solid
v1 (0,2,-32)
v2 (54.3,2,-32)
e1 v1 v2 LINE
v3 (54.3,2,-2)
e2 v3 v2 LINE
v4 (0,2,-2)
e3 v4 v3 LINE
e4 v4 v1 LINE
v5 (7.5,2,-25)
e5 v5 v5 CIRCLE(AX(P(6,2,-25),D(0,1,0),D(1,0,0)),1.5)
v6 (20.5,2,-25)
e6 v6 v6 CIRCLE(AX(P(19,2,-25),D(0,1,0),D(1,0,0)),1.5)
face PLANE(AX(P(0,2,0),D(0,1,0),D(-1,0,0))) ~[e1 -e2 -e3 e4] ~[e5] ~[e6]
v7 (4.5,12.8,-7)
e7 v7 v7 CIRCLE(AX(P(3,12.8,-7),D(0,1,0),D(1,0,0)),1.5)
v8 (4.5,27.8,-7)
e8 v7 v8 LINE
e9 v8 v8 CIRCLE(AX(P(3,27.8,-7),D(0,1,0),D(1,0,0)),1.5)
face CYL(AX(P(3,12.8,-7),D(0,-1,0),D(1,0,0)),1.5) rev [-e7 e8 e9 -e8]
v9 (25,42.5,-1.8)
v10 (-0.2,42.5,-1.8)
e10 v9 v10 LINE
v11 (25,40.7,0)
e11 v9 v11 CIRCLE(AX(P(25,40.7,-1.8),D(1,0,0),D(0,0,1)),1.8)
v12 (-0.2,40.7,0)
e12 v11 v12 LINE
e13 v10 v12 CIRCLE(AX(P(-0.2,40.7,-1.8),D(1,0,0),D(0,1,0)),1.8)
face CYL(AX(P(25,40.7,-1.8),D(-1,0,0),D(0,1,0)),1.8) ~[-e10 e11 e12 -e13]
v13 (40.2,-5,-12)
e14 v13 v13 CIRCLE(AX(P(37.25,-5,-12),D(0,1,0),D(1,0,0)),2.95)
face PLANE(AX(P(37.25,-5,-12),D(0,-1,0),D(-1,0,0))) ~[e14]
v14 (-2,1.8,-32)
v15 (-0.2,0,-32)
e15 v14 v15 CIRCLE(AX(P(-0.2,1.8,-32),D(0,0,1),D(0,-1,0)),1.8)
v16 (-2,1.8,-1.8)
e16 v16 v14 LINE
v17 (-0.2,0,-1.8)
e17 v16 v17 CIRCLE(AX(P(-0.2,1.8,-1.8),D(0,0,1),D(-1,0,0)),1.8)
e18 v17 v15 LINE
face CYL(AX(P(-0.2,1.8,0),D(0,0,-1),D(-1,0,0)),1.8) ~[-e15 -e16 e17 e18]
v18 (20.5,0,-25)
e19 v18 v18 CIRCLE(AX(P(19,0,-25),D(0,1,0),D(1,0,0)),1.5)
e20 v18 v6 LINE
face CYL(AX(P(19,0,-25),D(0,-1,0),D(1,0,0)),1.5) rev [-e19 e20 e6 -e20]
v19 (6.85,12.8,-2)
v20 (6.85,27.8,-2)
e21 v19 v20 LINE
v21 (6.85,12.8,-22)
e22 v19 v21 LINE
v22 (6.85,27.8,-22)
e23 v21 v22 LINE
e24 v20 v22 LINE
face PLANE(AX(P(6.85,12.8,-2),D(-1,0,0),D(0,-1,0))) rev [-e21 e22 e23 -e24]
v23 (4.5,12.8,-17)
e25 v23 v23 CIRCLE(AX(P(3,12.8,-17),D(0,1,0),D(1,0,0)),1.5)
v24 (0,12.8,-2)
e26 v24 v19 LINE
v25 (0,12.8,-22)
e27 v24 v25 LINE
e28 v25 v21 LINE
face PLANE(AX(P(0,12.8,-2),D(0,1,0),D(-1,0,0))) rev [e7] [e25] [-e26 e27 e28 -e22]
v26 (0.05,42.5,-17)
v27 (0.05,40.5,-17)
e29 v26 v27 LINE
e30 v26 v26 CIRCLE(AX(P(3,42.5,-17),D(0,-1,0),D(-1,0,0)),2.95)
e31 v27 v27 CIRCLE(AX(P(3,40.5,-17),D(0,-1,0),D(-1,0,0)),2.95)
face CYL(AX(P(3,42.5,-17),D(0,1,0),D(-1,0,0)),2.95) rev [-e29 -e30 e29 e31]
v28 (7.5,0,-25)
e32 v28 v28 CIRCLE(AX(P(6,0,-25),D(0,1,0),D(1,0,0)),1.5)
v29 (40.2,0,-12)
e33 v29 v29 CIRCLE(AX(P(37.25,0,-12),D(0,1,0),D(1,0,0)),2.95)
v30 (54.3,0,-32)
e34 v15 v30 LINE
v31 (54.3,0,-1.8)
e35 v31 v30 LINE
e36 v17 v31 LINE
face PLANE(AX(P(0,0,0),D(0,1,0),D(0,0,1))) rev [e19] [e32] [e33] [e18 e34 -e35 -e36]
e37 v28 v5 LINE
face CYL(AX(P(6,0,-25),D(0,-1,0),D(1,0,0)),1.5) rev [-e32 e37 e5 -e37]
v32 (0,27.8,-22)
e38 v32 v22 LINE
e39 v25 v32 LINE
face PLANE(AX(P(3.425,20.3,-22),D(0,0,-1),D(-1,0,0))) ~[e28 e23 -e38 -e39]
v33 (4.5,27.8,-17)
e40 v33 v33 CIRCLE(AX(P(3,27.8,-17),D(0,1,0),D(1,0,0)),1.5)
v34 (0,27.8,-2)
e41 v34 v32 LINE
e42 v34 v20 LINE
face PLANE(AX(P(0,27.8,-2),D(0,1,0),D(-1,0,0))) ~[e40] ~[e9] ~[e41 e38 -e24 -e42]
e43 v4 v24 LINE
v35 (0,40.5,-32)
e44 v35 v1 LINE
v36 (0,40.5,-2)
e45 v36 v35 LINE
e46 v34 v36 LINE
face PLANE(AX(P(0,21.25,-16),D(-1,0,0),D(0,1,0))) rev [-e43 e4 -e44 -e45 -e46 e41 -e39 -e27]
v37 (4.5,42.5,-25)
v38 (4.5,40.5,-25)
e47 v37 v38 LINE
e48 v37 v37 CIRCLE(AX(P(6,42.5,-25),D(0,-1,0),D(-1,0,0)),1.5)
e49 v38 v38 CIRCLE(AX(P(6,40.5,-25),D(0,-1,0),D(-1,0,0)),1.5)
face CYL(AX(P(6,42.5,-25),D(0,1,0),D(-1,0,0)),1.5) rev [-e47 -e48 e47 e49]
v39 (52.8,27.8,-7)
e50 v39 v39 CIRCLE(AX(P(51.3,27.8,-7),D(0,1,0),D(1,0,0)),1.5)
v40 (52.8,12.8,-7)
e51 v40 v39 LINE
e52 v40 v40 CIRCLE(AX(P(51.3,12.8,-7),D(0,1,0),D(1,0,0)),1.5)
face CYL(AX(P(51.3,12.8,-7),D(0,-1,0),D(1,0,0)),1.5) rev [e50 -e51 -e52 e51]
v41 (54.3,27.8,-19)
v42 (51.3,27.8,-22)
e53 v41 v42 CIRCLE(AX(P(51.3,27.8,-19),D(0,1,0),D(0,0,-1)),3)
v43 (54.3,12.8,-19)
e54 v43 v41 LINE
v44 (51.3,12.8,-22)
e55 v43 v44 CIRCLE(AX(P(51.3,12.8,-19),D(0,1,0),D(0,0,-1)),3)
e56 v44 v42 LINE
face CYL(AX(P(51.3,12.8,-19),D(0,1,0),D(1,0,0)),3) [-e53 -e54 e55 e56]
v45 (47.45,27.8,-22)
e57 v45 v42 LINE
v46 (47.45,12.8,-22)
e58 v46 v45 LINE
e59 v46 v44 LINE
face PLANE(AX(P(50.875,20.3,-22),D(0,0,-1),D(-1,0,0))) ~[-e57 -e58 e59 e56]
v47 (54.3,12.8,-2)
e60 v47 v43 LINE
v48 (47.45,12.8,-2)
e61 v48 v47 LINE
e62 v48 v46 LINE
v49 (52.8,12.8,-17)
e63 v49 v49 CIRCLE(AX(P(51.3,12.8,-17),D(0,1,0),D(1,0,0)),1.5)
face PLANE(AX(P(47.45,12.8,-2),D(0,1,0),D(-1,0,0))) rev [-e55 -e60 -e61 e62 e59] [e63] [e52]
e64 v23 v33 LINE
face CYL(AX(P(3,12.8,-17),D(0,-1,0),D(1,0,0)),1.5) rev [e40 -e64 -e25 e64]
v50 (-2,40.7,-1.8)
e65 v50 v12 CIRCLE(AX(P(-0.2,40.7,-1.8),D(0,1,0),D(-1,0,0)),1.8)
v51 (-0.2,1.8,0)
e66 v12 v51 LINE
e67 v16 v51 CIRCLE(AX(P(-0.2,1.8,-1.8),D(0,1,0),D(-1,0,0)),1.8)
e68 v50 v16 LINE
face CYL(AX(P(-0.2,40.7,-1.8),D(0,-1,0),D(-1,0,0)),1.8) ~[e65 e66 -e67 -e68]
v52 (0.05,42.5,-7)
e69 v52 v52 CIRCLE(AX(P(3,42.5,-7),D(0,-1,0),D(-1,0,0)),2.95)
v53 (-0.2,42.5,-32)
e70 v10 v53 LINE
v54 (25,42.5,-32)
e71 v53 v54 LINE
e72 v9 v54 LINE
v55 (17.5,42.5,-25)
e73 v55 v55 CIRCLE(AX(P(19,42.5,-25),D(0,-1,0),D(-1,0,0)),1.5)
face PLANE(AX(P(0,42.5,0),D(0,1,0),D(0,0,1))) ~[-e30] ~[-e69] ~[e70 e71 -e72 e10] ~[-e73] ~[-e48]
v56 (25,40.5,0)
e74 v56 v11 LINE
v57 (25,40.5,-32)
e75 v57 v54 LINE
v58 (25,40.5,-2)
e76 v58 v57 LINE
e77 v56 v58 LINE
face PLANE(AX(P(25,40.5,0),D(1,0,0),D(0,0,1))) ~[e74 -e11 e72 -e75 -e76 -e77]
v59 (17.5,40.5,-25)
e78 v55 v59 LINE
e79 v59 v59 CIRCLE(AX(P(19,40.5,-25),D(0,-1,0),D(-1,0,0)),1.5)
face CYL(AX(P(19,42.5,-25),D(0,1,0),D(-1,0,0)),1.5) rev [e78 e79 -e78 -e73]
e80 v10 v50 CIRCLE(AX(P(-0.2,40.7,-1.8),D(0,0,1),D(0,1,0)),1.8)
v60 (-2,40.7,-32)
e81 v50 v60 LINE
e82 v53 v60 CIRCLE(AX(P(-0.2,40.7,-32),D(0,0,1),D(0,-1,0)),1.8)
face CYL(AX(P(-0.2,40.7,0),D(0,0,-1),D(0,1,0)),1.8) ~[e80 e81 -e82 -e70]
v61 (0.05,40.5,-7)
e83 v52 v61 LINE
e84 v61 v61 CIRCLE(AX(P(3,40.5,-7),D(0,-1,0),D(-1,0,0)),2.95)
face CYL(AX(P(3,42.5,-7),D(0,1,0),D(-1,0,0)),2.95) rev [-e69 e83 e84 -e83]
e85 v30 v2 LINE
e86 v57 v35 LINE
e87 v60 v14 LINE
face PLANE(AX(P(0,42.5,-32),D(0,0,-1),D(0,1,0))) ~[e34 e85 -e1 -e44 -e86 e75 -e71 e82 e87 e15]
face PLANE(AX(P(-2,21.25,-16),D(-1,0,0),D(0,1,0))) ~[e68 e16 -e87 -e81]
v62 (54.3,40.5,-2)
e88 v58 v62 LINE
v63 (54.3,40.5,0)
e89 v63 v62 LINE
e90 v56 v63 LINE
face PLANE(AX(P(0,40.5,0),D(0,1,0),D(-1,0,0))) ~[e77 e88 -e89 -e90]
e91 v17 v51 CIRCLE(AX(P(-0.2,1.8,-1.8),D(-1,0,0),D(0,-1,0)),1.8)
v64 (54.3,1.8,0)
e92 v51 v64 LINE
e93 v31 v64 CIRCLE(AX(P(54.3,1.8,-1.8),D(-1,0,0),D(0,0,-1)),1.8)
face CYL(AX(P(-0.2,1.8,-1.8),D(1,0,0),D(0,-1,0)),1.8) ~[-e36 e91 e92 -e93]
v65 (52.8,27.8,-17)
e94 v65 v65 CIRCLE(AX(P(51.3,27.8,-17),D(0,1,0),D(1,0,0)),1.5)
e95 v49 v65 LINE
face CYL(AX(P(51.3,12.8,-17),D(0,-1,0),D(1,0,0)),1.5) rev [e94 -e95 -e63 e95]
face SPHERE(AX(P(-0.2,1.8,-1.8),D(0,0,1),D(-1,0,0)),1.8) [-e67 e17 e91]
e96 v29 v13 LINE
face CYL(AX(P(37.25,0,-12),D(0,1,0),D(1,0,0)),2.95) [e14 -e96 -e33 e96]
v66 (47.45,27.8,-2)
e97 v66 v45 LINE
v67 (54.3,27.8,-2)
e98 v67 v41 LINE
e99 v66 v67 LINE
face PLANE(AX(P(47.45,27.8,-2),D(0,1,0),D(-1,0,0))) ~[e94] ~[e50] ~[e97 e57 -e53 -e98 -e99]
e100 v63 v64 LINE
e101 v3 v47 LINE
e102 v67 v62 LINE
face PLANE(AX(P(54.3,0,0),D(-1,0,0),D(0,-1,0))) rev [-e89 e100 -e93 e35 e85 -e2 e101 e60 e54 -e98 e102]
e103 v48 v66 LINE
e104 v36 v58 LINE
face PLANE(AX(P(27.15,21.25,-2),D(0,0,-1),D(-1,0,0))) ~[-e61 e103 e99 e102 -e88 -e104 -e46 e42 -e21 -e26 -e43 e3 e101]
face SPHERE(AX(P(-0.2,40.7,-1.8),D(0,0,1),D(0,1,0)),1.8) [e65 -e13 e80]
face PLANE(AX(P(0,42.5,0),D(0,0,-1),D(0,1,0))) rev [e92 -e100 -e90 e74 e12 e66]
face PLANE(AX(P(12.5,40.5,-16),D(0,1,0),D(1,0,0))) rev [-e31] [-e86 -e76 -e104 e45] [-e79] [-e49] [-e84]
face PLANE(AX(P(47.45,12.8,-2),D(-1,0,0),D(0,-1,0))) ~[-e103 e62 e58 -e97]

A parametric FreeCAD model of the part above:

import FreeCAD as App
import Part
import Sketcher


def edges_at(feature, points):
    """Names of the edges that pass closest to the given points."""
    edges = feature.Shape.Edges
    near = lambda p: min(range(len(edges)), key=lambda i: edges[i].distToShape(Part.Vertex(*p))[0])
    return sorted({f"Edge{near(p) + 1}" for p in points})


def add_polygon(sketch, points):
    """Adds a closed chain of lines whose ends are joined by coincident constraints."""
    first, n = sketch.GeometryCount, len(points)
    for a, b in zip(points, points[1:] + points[:1]):
        sketch.addGeometry(Part.LineSegment(App.Vector(*a, 0), App.Vector(*b, 0)), False)
    for i in range(n):
        sketch.addConstraint(Sketcher.Constraint("Coincident", first + i, 2, first + (i + 1) % n, 1))

doc = App.newDocument("Part")
body = doc.addObject("PartDesign::Body", "Body")

# Sketch on XY plane
sketch1 = body.newObject("Sketcher::SketchObject", "Sketch")
sketch1.AttachmentSupport = (doc.getObject("XY_Plane"), [""])
sketch1.MapMode = "FlatFace"
add_polygon(sketch1, [(0, 40), (0, 2), (54, 2), (54, 40)])  # lines 0-3
sketch1.addConstraint(Sketcher.Constraint("Vertical", 0))
sketch1.addConstraint(Sketcher.Constraint("Horizontal", 1))
sketch1.addConstraint(Sketcher.Constraint("Vertical", 2))
sketch1.addConstraint(Sketcher.Constraint("Horizontal", 3))
sketch1.addConstraint(Sketcher.Constraint("PointOnObject", 0, 2, -2))
sketch1.addConstraint(Sketcher.Constraint("DistanceX", 1, 1, 1, 2, 54.3))
sketch1.addConstraint(Sketcher.Constraint("DistanceY", 0, 2, 0, 1, 38.5))
sketch1.addConstraint(Sketcher.Constraint("DistanceY", -1, 1, 0, 2, 2.0))
pad1 = body.newObject("PartDesign::Pad", "Pad")
pad1.Profile = sketch1
pad1.Length = 2

# Sketch on XY plane
sketch2 = body.newObject("Sketcher::SketchObject", "Sketch001")
sketch2.AttachmentSupport = (doc.getObject("XY_Plane"), [""])
sketch2.MapMode = "FlatFace"
sketch2.AttachmentOffset = App.Placement(App.Vector(0, 0, 2), App.Rotation())
add_polygon(sketch2, [(0, 28), (0, 13), (7, 13), (7, 28)])  # lines 0-3
sketch2.addConstraint(Sketcher.Constraint("Vertical", 0))
sketch2.addConstraint(Sketcher.Constraint("Horizontal", 1))
sketch2.addConstraint(Sketcher.Constraint("Vertical", 2))
sketch2.addConstraint(Sketcher.Constraint("Horizontal", 3))
sketch2.addConstraint(Sketcher.Constraint("PointOnObject", 0, 2, -2))
sketch2.addConstraint(Sketcher.Constraint("DistanceY", 0, 2, 0, 1, 15.0))
sketch2.addConstraint(Sketcher.Constraint("DistanceX", 1, 1, 1, 2, 6.85))
sketch2.addConstraint(Sketcher.Constraint("DistanceY", -1, 1, 0, 2, 12.8))
pad2 = body.newObject("PartDesign::Pad", "Pad001")
pad2.Profile = sketch2
pad2.Length = 20

# Sketch on XY plane
sketch3 = body.newObject("Sketcher::SketchObject", "Sketch002")
sketch3.AttachmentSupport = (doc.getObject("XY_Plane"), [""])
sketch3.MapMode = "FlatFace"
add_polygon(sketch3, [(0, 2), (0, 0), (54.3, 0), (54.3, 2)])  # lines 0-3
sketch3.addConstraint(Sketcher.Constraint("Vertical", 0))
sketch3.addConstraint(Sketcher.Constraint("Horizontal", 1))
sketch3.addConstraint(Sketcher.Constraint("Vertical", 2))
sketch3.addConstraint(Sketcher.Constraint("Horizontal", 3))
sketch3.addConstraint(Sketcher.Constraint("Coincident", 0, 2, -1, 1))
sketch3.addConstraint(Sketcher.Constraint("DistanceY", 0, 2, 0, 1, 2.0))
sketch3.addConstraint(Sketcher.Constraint("DistanceX", 1, 1, 1, 2, 54.3))
pad3 = body.newObject("PartDesign::Pad", "Pad002")
pad3.Profile = sketch3
pad3.Length = 32

# Sketch on XY plane
sketch4 = body.newObject("Sketcher::SketchObject", "Sketch003")
sketch4.AttachmentSupport = (doc.getObject("XY_Plane"), [""])
sketch4.MapMode = "FlatFace"
sketch4.AttachmentOffset = App.Placement(App.Vector(0, 0, 2), App.Rotation())
add_polygon(sketch4, [(47, 28), (47, 13), (54, 13), (54, 28)])  # lines 0-3
sketch4.addConstraint(Sketcher.Constraint("Vertical", 0))
sketch4.addConstraint(Sketcher.Constraint("Horizontal", 1))
sketch4.addConstraint(Sketcher.Constraint("Vertical", 2))
sketch4.addConstraint(Sketcher.Constraint("Horizontal", 3))
sketch4.addConstraint(Sketcher.Constraint("DistanceY", 0, 2, 0, 1, 15.0))
sketch4.addConstraint(Sketcher.Constraint("DistanceX", 1, 1, 1, 2, 6.85))
sketch4.addConstraint(Sketcher.Constraint("DistanceY", -1, 1, 0, 2, 12.8))
sketch4.addConstraint(Sketcher.Constraint("DistanceX", -1, 1, 1, 2, 54.3))
pad4 = body.newObject("PartDesign::Pad", "Pad003")
pad4.Profile = sketch4
pad4.Length = 20

# Sketch on XZ plane
sketch5 = body.newObject("Sketcher::SketchObject", "Sketch004")
sketch5.AttachmentSupport = (doc.getObject("XZ_Plane"), [""])
sketch5.MapMode = "FlatFace"
sketch5.addGeometry(Part.Circle(App.Vector(37.2, 12, 0), App.Vector(0, 0, 1), 3), False)
sketch5.addConstraint(Sketcher.Constraint("Diameter", 0, 5.9))
sketch5.addConstraint(Sketcher.Constraint("DistanceY", -1, 1, 0, 3, 12.0))
sketch5.addConstraint(Sketcher.Constraint("DistanceX", -1, 1, 0, 3, 37.25))
pad5 = body.newObject("PartDesign::Pad", "Pad004")
pad5.Profile = sketch5
pad5.Length = 5

# Sketch on XZ plane
sketch6 = body.newObject("Sketcher::SketchObject", "Sketch005")
sketch6.AttachmentSupport = (doc.getObject("XZ_Plane"), [""])
sketch6.MapMode = "FlatFace"
sketch6.AttachmentOffset = App.Placement(App.Vector(0, 0, -40.5), App.Rotation())
add_polygon(sketch6, [(25, 32), (25, 0), (0, 0), (0, 32)])  # lines 0-3
sketch6.addConstraint(Sketcher.Constraint("Vertical", 0))
sketch6.addConstraint(Sketcher.Constraint("Horizontal", 1))
sketch6.addConstraint(Sketcher.Constraint("Vertical", 2))
sketch6.addConstraint(Sketcher.Constraint("Horizontal", 3))
sketch6.addConstraint(Sketcher.Constraint("Coincident", 1, 2, -1, 1))
sketch6.addConstraint(Sketcher.Constraint("DistanceX", 1, 2, 1, 1, 25.0))
sketch6.addConstraint(Sketcher.Constraint("DistanceY", 0, 2, 0, 1, 32.0))
pad6 = body.newObject("PartDesign::Pad", "Pad005")
pad6.Profile = sketch6
pad6.Length = 2
pad6.Reversed = True

# Sketch on XZ plane
sketch7 = body.newObject("Sketcher::SketchObject", "Sketch006")
sketch7.AttachmentSupport = (doc.getObject("XZ_Plane"), [""])
sketch7.MapMode = "FlatFace"
sketch7.AttachmentOffset = App.Placement(App.Vector(0, 0, -12.8), App.Rotation())
sketch7.addGeometry(Part.Circle(App.Vector(51.3, 17, 0), App.Vector(0, 0, 1), 1.5), False)
sketch7.addGeometry(Part.Circle(App.Vector(51.3, 7, 0), App.Vector(0, 0, 1), 1.5), False)
sketch7.addConstraint(Sketcher.Constraint("Equal", 0, 1))
sketch7.addConstraint(Sketcher.Constraint("Vertical", 0, 3, 1, 3))
sketch7.addConstraint(Sketcher.Constraint("Diameter", 0, 3.0))
sketch7.addConstraint(Sketcher.Constraint("DistanceY", -1, 1, 0, 3, 17.0))
sketch7.addConstraint(Sketcher.Constraint("DistanceY", -1, 1, 1, 3, 7.0))
sketch7.addConstraint(Sketcher.Constraint("DistanceX", -1, 1, 0, 3, 51.3))
pocket1 = body.newObject("PartDesign::Pocket", "Pocket")
pocket1.Profile = sketch7
pocket1.Length = 15

# Sketch on XZ plane
sketch8 = body.newObject("Sketcher::SketchObject", "Sketch007")
sketch8.AttachmentSupport = (doc.getObject("XZ_Plane"), [""])
sketch8.MapMode = "FlatFace"
sketch8.AttachmentOffset = App.Placement(App.Vector(0, 0, -12.8), App.Rotation())
sketch8.addGeometry(Part.Circle(App.Vector(3, 17, 0), App.Vector(0, 0, 1), 1.5), False)
sketch8.addGeometry(Part.Circle(App.Vector(3, 7, 0), App.Vector(0, 0, 1), 1.5), False)
sketch8.addConstraint(Sketcher.Constraint("Equal", 0, 1))
sketch8.addConstraint(Sketcher.Constraint("Vertical", 0, 3, 1, 3))
sketch8.addConstraint(Sketcher.Constraint("Diameter", 0, 3.0))
sketch8.addConstraint(Sketcher.Constraint("DistanceX", -1, 1, 0, 3, 3.0))
sketch8.addConstraint(Sketcher.Constraint("DistanceY", -1, 1, 0, 3, 17.0))
sketch8.addConstraint(Sketcher.Constraint("DistanceY", -1, 1, 1, 3, 7.0))
pocket2 = body.newObject("PartDesign::Pocket", "Pocket001")
pocket2.Profile = sketch8
pocket2.Length = 20

# Sketch on XZ plane
sketch9 = body.newObject("Sketcher::SketchObject", "Sketch008")
sketch9.AttachmentSupport = (doc.getObject("XZ_Plane"), [""])
sketch9.MapMode = "FlatFace"
sketch9.AttachmentOffset = App.Placement(App.Vector(0, 0, -42.5), App.Rotation())
sketch9.addGeometry(Part.Circle(App.Vector(6, 25, 0), App.Vector(0, 0, 1), 1.5), False)
sketch9.addGeometry(Part.Circle(App.Vector(19, 25, 0), App.Vector(0, 0, 1), 1.5), False)
sketch9.addGeometry(Part.Circle(App.Vector(3, 7, 0), App.Vector(0, 0, 1), 3), False)
sketch9.addGeometry(Part.Circle(App.Vector(3, 17, 0), App.Vector(0, 0, 1), 3), False)
sketch9.addConstraint(Sketcher.Constraint("Equal", 0, 1))
sketch9.addConstraint(Sketcher.Constraint("Equal", 2, 3))
sketch9.addConstraint(Sketcher.Constraint("Horizontal", 0, 3, 1, 3))
sketch9.addConstraint(Sketcher.Constraint("Vertical", 2, 3, 3, 3))
sketch9.addConstraint(Sketcher.Constraint("Diameter", 0, 3.0))
sketch9.addConstraint(Sketcher.Constraint("Diameter", 2, 5.9))
sketch9.addConstraint(Sketcher.Constraint("DistanceX", -1, 1, 0, 3, 6.0))
sketch9.addConstraint(Sketcher.Constraint("DistanceY", -1, 1, 0, 3, 25.0))
sketch9.addConstraint(Sketcher.Constraint("DistanceX", -1, 1, 1, 3, 19.0))
sketch9.addConstraint(Sketcher.Constraint("DistanceX", -1, 1, 2, 3, 3.0))
sketch9.addConstraint(Sketcher.Constraint("DistanceY", -1, 1, 2, 3, 7.0))
sketch9.addConstraint(Sketcher.Constraint("DistanceY", -1, 1, 3, 3, 17.0))
pocket3 = body.newObject("PartDesign::Pocket", "Pocket002")
pocket3.Profile = sketch9
pocket3.Length = 2
pocket3.Reversed = True

# Sketch on XZ plane
sketch10 = body.newObject("Sketcher::SketchObject", "Sketch009")
sketch10.AttachmentSupport = (doc.getObject("XZ_Plane"), [""])
sketch10.MapMode = "FlatFace"
sketch10.addGeometry(Part.Circle(App.Vector(19, 25, 0), App.Vector(0, 0, 1), 1.5), False)
sketch10.addGeometry(Part.Circle(App.Vector(6, 25, 0), App.Vector(0, 0, 1), 1.5), False)
sketch10.addConstraint(Sketcher.Constraint("Equal", 0, 1))
sketch10.addConstraint(Sketcher.Constraint("Horizontal", 0, 3, 1, 3))
sketch10.addConstraint(Sketcher.Constraint("Diameter", 0, 3.0))
sketch10.addConstraint(Sketcher.Constraint("DistanceX", -1, 1, 0, 3, 19.0))
sketch10.addConstraint(Sketcher.Constraint("DistanceY", -1, 1, 0, 3, 25.0))
sketch10.addConstraint(Sketcher.Constraint("DistanceX", -1, 1, 1, 3, 6.0))
pocket4 = body.newObject("PartDesign::Pocket", "Pocket003")
pocket4.Profile = sketch10
pocket4.Length = 3

# Sketch on YZ plane
sketch11 = body.newObject("Sketcher::SketchObject", "Sketch010")
sketch11.AttachmentSupport = (doc.getObject("YZ_Plane"), [""])
sketch11.MapMode = "FlatFace"
add_polygon(sketch11, [(42, 32), (42, 0), (0, 0), (0, 32)])  # lines 0-3
sketch11.addConstraint(Sketcher.Constraint("Vertical", 0))
sketch11.addConstraint(Sketcher.Constraint("Horizontal", 1))
sketch11.addConstraint(Sketcher.Constraint("Vertical", 2))
sketch11.addConstraint(Sketcher.Constraint("Horizontal", 3))
sketch11.addConstraint(Sketcher.Constraint("Coincident", 1, 2, -1, 1))
sketch11.addConstraint(Sketcher.Constraint("DistanceY", 0, 2, 0, 1, 32.0))
sketch11.addConstraint(Sketcher.Constraint("DistanceX", 1, 2, 1, 1, 42.5))
pad7 = body.newObject("PartDesign::Pad", "Pad006")
pad7.Profile = sketch11
pad7.Length = 2
pad7.Reversed = True
doc.recompute()

fillet = body.newObject("PartDesign::Fillet", "Fillet")
fillet.Base = (pad7, edges_at(pad7, [(-2, 42.5, 16)]))
fillet.Radius = 1.8
doc.recompute()

fillet2 = body.newObject("PartDesign::Fillet", "Fillet001")
fillet2.Base = (fillet, edges_at(fillet, [(-2, 0, 16)]))
fillet2.Radius = 1.8
doc.recompute()

fillet3 = body.newObject("PartDesign::Fillet", "Fillet002")
fillet3.Base = (fillet2, edges_at(fillet2, [(-2, 21.25, 0)]))
fillet3.Radius = 1.8
doc.recompute()

fillet4 = body.newObject("PartDesign::Fillet", "Fillet003")
fillet4.Base = (fillet3, edges_at(fillet3, [(54.3, 20.3, 22)]))
fillet4.Radius = 3
body2 = doc.addObject("PartDesign::Body", "Body001")
doc.recompute()

mirroring = doc.addObject("Part::Mirroring", "Mirroring")
mirroring.Source = body
mirroring.Base = App.Vector(0, 0, 0)
mirroring.Normal = App.Vector(0, 0, 1)
body2.BaseFeature = mirroring
doc.recompute()
body.Visibility = False
mirroring.Visibility = False

doc.recompute()
